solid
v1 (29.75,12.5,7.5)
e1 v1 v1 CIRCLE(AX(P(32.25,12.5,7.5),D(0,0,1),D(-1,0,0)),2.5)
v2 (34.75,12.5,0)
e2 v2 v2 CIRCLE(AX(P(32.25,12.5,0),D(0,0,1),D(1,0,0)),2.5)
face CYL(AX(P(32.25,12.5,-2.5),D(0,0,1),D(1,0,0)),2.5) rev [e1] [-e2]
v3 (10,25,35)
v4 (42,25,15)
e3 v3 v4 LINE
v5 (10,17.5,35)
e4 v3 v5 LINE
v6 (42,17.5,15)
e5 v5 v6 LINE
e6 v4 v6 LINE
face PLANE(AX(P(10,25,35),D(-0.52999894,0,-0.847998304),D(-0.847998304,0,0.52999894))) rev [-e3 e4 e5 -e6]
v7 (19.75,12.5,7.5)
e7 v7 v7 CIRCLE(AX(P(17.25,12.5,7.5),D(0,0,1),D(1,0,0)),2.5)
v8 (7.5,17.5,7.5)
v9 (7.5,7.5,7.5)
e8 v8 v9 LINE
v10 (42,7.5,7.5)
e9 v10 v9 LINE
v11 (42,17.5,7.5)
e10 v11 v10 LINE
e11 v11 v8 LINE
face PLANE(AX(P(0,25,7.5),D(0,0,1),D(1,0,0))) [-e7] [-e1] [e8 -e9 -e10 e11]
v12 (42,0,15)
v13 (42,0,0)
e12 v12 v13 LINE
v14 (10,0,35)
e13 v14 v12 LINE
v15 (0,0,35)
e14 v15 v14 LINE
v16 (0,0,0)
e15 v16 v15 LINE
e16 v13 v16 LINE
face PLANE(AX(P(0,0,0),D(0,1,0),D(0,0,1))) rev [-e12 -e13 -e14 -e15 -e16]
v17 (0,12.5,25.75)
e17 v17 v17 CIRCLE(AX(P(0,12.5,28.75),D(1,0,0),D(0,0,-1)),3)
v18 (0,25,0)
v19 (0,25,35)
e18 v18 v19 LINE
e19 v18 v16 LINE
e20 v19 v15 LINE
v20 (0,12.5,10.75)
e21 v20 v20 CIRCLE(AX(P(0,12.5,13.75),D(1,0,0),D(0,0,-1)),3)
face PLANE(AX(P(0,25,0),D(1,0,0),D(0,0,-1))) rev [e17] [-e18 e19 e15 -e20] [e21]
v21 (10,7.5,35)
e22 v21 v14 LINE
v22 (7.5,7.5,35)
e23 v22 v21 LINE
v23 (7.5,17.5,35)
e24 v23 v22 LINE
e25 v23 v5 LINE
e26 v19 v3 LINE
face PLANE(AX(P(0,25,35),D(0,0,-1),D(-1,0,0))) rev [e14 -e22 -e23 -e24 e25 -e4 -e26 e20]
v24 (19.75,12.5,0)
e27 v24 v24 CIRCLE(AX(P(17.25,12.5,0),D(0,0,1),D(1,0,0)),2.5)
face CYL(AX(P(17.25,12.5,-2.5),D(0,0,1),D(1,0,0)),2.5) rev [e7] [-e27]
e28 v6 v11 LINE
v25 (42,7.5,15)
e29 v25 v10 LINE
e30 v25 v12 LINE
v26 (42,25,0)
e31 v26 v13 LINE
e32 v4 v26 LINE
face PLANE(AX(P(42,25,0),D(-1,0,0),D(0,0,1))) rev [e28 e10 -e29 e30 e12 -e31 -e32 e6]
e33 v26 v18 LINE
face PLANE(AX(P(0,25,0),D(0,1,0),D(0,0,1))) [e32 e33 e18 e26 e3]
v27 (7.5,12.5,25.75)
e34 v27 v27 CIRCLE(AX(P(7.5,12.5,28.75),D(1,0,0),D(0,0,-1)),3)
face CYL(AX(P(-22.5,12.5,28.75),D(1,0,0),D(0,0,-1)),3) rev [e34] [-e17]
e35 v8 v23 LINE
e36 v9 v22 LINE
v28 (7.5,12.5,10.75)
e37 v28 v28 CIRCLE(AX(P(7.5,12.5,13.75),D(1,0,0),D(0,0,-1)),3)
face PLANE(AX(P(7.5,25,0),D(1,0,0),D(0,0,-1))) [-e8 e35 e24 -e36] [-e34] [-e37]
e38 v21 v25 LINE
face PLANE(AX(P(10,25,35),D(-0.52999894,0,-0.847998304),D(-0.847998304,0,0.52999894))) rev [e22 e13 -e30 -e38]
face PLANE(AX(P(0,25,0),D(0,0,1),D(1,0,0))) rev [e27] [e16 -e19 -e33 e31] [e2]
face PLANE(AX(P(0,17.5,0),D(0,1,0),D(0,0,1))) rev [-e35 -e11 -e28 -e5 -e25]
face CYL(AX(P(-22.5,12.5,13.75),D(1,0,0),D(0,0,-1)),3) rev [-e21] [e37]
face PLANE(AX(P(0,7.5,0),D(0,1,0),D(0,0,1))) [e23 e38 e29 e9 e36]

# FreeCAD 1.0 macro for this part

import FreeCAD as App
import Part
import Sketcher

V = App.Vector


def faces_at(feature, points):
    """Names of the faces that lie closest to the given points."""
    faces = feature.Shape.Faces
    near = lambda p: min(range(len(faces)), key=lambda i: faces[i].distToShape(Part.Vertex(*p))[0])
    return sorted({f"Face{near(p) + 1}" for p in points})


def add_polygon(sketch, points):
    """Adds a closed chain of lines whose ends are joined by coincident constraints."""
    first, n = sketch.GeometryCount, len(points)
    for a, b in zip(points, points[1:] + points[:1]):
        sketch.addGeometry(Part.LineSegment(App.Vector(*a, 0), App.Vector(*b, 0)), False)
    for i in range(n):
        sketch.addConstraint(Sketcher.Constraint("Coincident", first + i, 2, first + (i + 1) % n, 1))

doc = App.newDocument("Part")
body = doc.addObject("PartDesign::Body", "Body")

sketch1 = body.newObject("Sketcher::SketchObject", "Sketch")
sketch1.AttachmentSupport = (doc.getObject("XZ_Plane"), [""])
sketch1.MapMode = "FlatFace"
add_polygon(sketch1, [(10, 35), (42, 15), (42, 0), (0, 0), (0, 35)])
sketch1.addConstraint(Sketcher.Constraint("Vertical", 1))
sketch1.addConstraint(Sketcher.Constraint("Horizontal", 2))
sketch1.addConstraint(Sketcher.Constraint("Vertical", 3))
sketch1.addConstraint(Sketcher.Constraint("Horizontal", 4))
sketch1.addConstraint(Sketcher.Constraint("Coincident", 2, 2, -1, 1))
sketch1.addConstraint(Sketcher.Constraint("DistanceX", 2, 2, 2, 1, 42.0))
sketch1.addConstraint(Sketcher.Constraint("DistanceX", 4, 1, 4, 2, 10.0))
sketch1.addConstraint(Sketcher.Constraint("DistanceY", 1, 2, 1, 1, 15.0))
sketch1.addConstraint(Sketcher.Constraint("DistanceY", 3, 1, 3, 2, 35.0))
pad1 = body.newObject("PartDesign::Pad", "Pad")
pad1.Profile = sketch1
pad1.Length = 25
pad1.Reversed = True
doc.recompute()

thickness = body.newObject("PartDesign::Thickness", "Thickness")
thickness.Base = (pad1, faces_at(pad1, [(42, 12.5, 7.5), (26, 12.5, 25), (5, 12.5, 35)]))
thickness.Value = 7.5
thickness.Reversed = True
thickness.Join = "Intersection"

sketch2 = body.newObject("Sketcher::SketchObject", "Sketch001")
sketch2.AttachmentSupport = (doc.getObject("YZ_Plane"), [""])
sketch2.MapMode = "FlatFace"
sketch2.AttachmentOffset = App.Placement(V(0, 0, 7.5), App.Rotation())
sketch2.addGeometry(Part.Circle(V(12.5, 28.8, 0), V(0, 0, 1), 3), False)
sketch2.addGeometry(Part.Circle(V(12.5, 13.8, 0), V(0, 0, 1), 3), False)
sketch2.addConstraint(Sketcher.Constraint("Equal", 0, 1))
sketch2.addConstraint(Sketcher.Constraint("Vertical", 0, 3, 1, 3))
sketch2.addConstraint(Sketcher.Constraint("Diameter", 0, 6.0))
sketch2.addConstraint(Sketcher.Constraint("DistanceY", 1, 3, 0, 3, 15.0))
sketch2.addConstraint(Sketcher.Constraint("DistanceX", -1, 1, 0, 3, 12.5))
sketch2.addConstraint(Sketcher.Constraint("DistanceY", -1, 1, 0, 3, 28.75))
pocket1 = body.newObject("PartDesign::Pocket", "Pocket")
pocket1.Profile = sketch2
pocket1.Length = 30

sketch3 = body.newObject("Sketcher::SketchObject", "Sketch002")
sketch3.AttachmentSupport = (doc.getObject("XY_Plane"), [""])
sketch3.MapMode = "FlatFace"
sketch3.AttachmentOffset = App.Placement(V(0, 0, 7.5), App.Rotation())
sketch3.addGeometry(Part.Circle(V(17.2, 12.5, 0), V(0, 0, 1), 2.5), False)
sketch3.addGeometry(Part.Circle(V(32.2, 12.5, 0), V(0, 0, 1), 2.5), False)
sketch3.addConstraint(Sketcher.Constraint("Equal", 0, 1))
sketch3.addConstraint(Sketcher.Constraint("Horizontal", 0, 3, 1, 3))
sketch3.addConstraint(Sketcher.Constraint("Diameter", 0, 5.0))
sketch3.addConstraint(Sketcher.Constraint("DistanceX", 0, 3, 1, 3, 15.0))
sketch3.addConstraint(Sketcher.Constraint("DistanceY", -1, 1, 0, 3, 12.5))
sketch3.addConstraint(Sketcher.Constraint("DistanceX", -1, 1, 0, 3, 17.25))
pocket2 = body.newObject("PartDesign::Pocket", "Pocket001")
pocket2.Profile = sketch3
pocket2.Length = 10

doc.recompute()
